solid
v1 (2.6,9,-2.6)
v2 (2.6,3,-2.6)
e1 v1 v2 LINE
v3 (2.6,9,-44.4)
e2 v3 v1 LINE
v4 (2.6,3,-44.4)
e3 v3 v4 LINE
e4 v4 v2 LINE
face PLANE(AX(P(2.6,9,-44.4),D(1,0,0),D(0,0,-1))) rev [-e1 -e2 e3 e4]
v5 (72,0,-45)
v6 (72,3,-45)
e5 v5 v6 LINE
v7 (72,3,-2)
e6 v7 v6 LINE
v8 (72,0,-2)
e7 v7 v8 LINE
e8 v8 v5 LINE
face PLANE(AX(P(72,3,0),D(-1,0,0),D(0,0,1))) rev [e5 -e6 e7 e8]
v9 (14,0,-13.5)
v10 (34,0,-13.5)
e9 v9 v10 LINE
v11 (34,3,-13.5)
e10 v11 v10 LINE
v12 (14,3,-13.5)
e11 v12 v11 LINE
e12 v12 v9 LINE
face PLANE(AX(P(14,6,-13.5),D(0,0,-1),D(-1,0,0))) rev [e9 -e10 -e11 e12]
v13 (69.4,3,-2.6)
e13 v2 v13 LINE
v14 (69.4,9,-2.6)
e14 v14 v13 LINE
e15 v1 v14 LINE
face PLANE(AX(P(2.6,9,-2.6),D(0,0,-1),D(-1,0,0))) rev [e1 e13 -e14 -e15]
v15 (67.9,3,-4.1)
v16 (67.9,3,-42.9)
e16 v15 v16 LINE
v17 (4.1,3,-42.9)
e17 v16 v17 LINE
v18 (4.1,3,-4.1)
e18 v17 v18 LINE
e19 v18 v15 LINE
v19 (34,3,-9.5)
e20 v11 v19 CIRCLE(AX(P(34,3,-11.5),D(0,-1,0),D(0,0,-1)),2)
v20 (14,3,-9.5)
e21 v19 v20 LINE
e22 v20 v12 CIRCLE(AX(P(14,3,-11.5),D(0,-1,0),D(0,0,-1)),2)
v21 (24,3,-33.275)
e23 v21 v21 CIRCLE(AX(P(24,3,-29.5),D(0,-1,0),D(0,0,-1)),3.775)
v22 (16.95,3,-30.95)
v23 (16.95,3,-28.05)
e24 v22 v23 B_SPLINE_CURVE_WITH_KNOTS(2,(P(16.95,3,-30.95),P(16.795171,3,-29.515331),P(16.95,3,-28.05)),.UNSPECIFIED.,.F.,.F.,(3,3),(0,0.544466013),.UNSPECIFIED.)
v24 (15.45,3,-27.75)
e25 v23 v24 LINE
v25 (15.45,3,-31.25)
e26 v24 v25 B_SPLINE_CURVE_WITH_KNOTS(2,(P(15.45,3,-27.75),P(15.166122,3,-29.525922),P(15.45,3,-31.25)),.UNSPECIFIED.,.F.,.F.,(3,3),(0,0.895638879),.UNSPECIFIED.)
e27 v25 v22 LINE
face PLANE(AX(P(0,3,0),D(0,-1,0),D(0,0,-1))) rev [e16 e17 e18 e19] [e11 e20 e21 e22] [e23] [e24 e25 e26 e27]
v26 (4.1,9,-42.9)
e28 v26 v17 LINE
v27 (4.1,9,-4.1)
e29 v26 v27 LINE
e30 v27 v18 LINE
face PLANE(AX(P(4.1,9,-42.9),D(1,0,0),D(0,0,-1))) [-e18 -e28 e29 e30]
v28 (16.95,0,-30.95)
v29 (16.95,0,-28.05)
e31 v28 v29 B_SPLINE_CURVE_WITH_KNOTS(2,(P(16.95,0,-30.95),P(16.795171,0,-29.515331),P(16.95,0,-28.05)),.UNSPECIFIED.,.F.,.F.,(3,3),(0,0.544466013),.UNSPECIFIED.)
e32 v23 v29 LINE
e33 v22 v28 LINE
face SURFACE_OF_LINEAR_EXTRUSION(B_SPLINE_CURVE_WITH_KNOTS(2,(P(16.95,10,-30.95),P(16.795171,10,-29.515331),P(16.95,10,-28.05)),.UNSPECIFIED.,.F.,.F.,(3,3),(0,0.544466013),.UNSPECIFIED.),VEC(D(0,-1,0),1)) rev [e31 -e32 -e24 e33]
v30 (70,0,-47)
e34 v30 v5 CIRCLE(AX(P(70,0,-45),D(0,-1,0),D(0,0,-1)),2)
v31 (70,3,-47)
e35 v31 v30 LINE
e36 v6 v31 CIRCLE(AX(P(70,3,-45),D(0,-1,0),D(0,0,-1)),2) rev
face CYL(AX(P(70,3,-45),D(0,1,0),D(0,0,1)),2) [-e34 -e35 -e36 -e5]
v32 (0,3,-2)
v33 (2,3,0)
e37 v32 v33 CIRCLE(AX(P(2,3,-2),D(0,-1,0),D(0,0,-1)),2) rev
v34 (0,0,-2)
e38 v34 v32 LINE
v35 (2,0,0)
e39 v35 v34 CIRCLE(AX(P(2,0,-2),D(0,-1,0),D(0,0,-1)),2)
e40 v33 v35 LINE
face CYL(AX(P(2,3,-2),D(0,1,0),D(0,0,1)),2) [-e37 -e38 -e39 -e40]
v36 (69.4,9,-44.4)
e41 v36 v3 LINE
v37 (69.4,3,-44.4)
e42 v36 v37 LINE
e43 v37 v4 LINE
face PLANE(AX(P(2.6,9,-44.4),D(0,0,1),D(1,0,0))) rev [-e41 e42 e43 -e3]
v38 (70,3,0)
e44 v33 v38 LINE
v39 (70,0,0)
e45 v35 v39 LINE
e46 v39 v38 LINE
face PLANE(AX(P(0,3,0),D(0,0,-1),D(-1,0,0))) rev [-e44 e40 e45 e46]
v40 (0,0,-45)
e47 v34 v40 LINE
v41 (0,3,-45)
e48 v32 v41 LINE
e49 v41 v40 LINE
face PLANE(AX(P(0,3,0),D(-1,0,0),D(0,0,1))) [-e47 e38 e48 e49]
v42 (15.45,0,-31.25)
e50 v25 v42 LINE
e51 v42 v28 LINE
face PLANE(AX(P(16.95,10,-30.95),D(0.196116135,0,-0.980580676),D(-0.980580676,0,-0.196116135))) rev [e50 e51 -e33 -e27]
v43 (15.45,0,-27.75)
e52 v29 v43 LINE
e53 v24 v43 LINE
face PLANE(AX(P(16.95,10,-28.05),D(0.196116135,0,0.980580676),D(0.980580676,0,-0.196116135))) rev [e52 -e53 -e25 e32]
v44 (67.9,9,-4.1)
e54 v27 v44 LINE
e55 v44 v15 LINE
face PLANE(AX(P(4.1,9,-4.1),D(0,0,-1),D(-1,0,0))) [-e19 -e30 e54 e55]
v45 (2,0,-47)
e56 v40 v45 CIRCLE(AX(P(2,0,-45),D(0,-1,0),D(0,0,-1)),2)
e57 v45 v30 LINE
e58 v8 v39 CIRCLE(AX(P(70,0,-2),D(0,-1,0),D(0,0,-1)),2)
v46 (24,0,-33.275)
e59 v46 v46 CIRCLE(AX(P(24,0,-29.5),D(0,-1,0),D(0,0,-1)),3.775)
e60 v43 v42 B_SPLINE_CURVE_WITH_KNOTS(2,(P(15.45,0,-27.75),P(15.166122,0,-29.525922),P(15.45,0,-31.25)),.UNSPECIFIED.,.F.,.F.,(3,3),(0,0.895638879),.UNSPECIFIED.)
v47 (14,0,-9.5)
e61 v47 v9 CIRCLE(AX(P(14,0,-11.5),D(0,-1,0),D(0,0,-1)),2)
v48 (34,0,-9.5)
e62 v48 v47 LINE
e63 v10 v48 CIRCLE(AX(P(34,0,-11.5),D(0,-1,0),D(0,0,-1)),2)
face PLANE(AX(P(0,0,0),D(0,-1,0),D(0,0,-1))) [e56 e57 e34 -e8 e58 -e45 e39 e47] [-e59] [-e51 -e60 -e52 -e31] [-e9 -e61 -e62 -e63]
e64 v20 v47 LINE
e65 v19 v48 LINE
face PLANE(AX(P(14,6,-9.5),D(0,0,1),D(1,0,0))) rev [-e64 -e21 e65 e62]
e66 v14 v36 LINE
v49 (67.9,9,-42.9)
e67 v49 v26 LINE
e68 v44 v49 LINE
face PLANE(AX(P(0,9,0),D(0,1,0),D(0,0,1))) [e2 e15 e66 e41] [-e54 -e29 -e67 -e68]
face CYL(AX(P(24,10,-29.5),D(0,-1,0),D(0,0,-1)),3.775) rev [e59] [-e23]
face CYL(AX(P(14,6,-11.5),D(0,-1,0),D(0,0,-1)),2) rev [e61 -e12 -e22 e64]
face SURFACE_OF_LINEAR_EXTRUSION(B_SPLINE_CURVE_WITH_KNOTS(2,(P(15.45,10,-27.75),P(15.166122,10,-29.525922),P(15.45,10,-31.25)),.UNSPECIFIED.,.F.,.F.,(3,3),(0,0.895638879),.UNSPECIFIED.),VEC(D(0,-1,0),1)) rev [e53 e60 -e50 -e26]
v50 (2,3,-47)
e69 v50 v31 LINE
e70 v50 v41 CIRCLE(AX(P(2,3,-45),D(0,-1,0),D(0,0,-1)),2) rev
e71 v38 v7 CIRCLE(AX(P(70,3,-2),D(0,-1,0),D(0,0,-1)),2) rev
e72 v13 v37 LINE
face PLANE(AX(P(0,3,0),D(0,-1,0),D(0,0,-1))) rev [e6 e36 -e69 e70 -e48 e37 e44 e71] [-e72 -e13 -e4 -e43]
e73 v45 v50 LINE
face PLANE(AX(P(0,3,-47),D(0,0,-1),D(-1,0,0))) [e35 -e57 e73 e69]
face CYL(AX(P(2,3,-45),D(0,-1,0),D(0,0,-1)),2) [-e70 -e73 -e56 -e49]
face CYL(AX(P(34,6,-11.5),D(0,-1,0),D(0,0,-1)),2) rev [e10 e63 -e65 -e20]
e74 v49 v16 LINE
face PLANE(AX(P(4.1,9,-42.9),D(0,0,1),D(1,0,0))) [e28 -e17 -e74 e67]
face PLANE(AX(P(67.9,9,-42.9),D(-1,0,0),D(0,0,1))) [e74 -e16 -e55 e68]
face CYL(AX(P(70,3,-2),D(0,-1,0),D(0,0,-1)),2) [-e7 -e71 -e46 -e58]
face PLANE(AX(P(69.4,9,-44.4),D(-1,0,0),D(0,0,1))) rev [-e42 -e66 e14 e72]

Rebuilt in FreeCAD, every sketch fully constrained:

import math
import FreeCAD as App
import Part
import Sketcher
Q = App.Units.Quantity


def edges_at(feature, points):
    """Names of the edges that pass closest to the given points."""
    edges = feature.Shape.Edges
    near = lambda p: min(range(len(edges)), key=lambda i: edges[i].distToShape(Part.Vertex(*p))[0])
    return sorted({f"Edge{near(p) + 1}" for p in points})


def add_polygon(sketch, points):
    """Adds a closed chain of lines whose ends are joined by coincident constraints."""
    first, n = sketch.GeometryCount, len(points)
    for a, b in zip(points, points[1:] + points[:1]):
        sketch.addGeometry(Part.LineSegment(App.Vector(*a, 0), App.Vector(*b, 0)), False)
    for i in range(n):
        sketch.addConstraint(Sketcher.Constraint("Coincident", first + i, 2, first + (i + 1) % n, 1))

doc = App.newDocument("Part")
body = doc.addObject("PartDesign::Body", "Body")

sketch1 = body.newObject("Sketcher::SketchObject", "Sketch")
sketch1.AttachmentSupport = (doc.getObject("XZ_Plane"), [""])
sketch1.MapMode = "FlatFace"
add_polygon(sketch1, [(0, -47), (0, 0), (72, 0), (72, -47)])
sketch1.addConstraint([
    Sketcher.Constraint("Vertical", 0),
    Sketcher.Constraint("Horizontal", 1),
    Sketcher.Constraint("Vertical", 2),
    Sketcher.Constraint("Horizontal", 3),
    Sketcher.Constraint("Coincident", 0, 2, -1, 1),
    Sketcher.Constraint("DistanceX", 1, 1, 1, 2, Q("72 mm")),
    Sketcher.Constraint("DistanceY", 0, 1, 0, 2, Q("47 mm")),
])
pad1 = body.newObject("PartDesign::Pad", "Pad")
pad1.Profile = sketch1
pad1.Length = 3
pad1.Reversed = True
doc.recompute()

fillet = body.newObject("PartDesign::Fillet", "Fillet")
fillet.Base = (pad1, edges_at(pad1, [
    (0, 1.5, 0),
    (72, 1.5, 0),
    (72, 1.5, -47),
    (0, 1.5, -47),
]))
fillet.Radius = 2

sketch2 = body.newObject("Sketcher::SketchObject", "Sketch001")
sketch2.AttachmentSupport = (doc.getObject("XZ_Plane"), [""])
sketch2.MapMode = "FlatFace"
sketch2.AttachmentOffset = App.Placement(App.Vector(0, 0, -3), App.Rotation())
add_polygon(sketch2, [(3, -44), (3, -3), (69, -3), (69, -44)])
add_polygon(sketch2, [(68, -4), (4, -4), (4, -43), (68, -43)])
sketch2.addConstraint([
    Sketcher.Constraint("Vertical", 0),
    Sketcher.Constraint("Horizontal", 1),
    Sketcher.Constraint("Vertical", 2),
    Sketcher.Constraint("Horizontal", 3),
    Sketcher.Constraint("Horizontal", 4),
    Sketcher.Constraint("Vertical", 5),
    Sketcher.Constraint("Horizontal", 6),
    Sketcher.Constraint("Vertical", 7),
    Sketcher.Constraint("DistanceX", 1, 1, 1, 2, Q("66.8 mm")),
    Sketcher.Constraint("DistanceX", 4, 2, 4, 1, Q("63.8 mm")),
    Sketcher.Constraint("DistanceY", 0, 1, 0, 2, Q("41.8 mm")),
    Sketcher.Constraint("DistanceY", 5, 2, 5, 1, Q("38.8 mm")),
    Sketcher.Constraint("DistanceX", -1, 1, 0, 2, Q("2.6 mm")),
    Sketcher.Constraint("DistanceY", 0, 2, -1, 1, Q("2.6 mm")),
    Sketcher.Constraint("DistanceX", -1, 1, 4, 2, Q("4.1 mm")),
    Sketcher.Constraint("DistanceY", 4, 2, -1, 1, Q("4.1 mm")),
])
pad2 = body.newObject("PartDesign::Pad", "Pad001")
pad2.Profile = sketch2
pad2.Length = 6
pad2.Reversed = True

sketch3 = body.newObject("Sketcher::SketchObject", "Sketch002")
sketch3.AttachmentSupport = (doc.getObject("XZ_Plane"), [""])
sketch3.MapMode = "FlatFace"
sketch3.addGeometry([
    Part.LineSegment(App.Vector(34, -9.5, 0), App.Vector(14, -9.5, 0)),
    Part.ArcOfCircle(Part.Circle(App.Vector(14, -11.5, 0), App.Vector(0, 0, 1), 2), math.radians(90), math.radians(270)),
    Part.LineSegment(App.Vector(14, -13.5, 0), App.Vector(34, -13.5, 0)),
    Part.ArcOfCircle(Part.Circle(App.Vector(34, -11.5, 0), App.Vector(0, 0, 1), 2), math.radians(-90), math.radians(90)),
], False)
sketch3.addConstraint([
    Sketcher.Constraint("Tangent", 0, 2, 1, 1),
    Sketcher.Constraint("Tangent", 1, 2, 2, 1),
    Sketcher.Constraint("Tangent", 2, 2, 3, 1),
    Sketcher.Constraint("Tangent", 3, 2, 0, 1),
    Sketcher.Constraint("Horizontal", 0),
    Sketcher.Constraint("Horizontal", 2),
    Sketcher.Constraint("Radius", 1, Q("2 mm")),
    Sketcher.Constraint("DistanceX", 0, 2, 0, 1, Q("20 mm")),
    Sketcher.Constraint("DistanceX", -1, 1, 1, 3, Q("14 mm")),
    Sketcher.Constraint("DistanceY", 1, 3, -1, 1, Q("11.5 mm")),
])
pocket1 = body.newObject("PartDesign::Pocket", "Pocket")
pocket1.Profile = sketch3
pocket1.Length = 6

sketch4 = body.newObject("Sketcher::SketchObject", "Sketch003")
sketch4.AttachmentSupport = (doc.getObject("XZ_Plane"), [""])
sketch4.MapMode = "FlatFace"
sketch4.addGeometry(Part.Circle(App.Vector(24, -29.5, 0), App.Vector(0, 0, 1), 3.8), False)
sketch4.addConstraint([
    Sketcher.Constraint("Diameter", 0, Q("7.55 mm")),
    Sketcher.Constraint("DistanceX", -1, 1, 0, 3, Q("24 mm")),
    Sketcher.Constraint("DistanceY", 0, 3, -1, 1, Q("29.5 mm")),
])
pocket2 = body.newObject("PartDesign::Pocket", "Pocket001")
pocket2.Profile = sketch4
pocket2.Length = 10

sketch5 = body.newObject("Sketcher::SketchObject", "Sketch004")
sketch5.AttachmentSupport = (doc.getObject("XZ_Plane"), [""])
sketch5.MapMode = "FlatFace"
sketch5.addGeometry([
    Part.LineSegment(App.Vector(16.95, -28.05, 0), App.Vector(15.45, -27.75, 0)),
    Part.BSplineCurve([App.Vector(15.45, -27.75, 0), App.Vector(15.166122, -29.525922, 0), App.Vector(15.45, -31.25, 0)], [3, 3], [0, 0.895638879], False, 2, [1, 1, 1], False),
    Part.LineSegment(App.Vector(15.45, -31.25, 0), App.Vector(16.95, -30.95, 0)),
    Part.BSplineCurve([App.Vector(16.95, -28.05, 0), App.Vector(16.795171, -29.515331, 0), App.Vector(16.95, -30.95, 0)], [3, 3], [0, 0.544466013], False, 2, [1, 1, 1], False),
], False)
sketch5.addConstraint([
    Sketcher.Constraint("Block", 1),
    Sketcher.Constraint("Block", 3),
    Sketcher.Constraint("Coincident", 0, 2, 1, 1),
    Sketcher.Constraint("Coincident", 1, 2, 2, 1),
    Sketcher.Constraint("Coincident", 2, 2, 3, 2),
    Sketcher.Constraint("Coincident", 3, 1, 0, 1),
])
pocket3 = body.newObject("PartDesign::Pocket", "Pocket002")
pocket3.Profile = sketch5
pocket3.Length = 10

doc.recompute()
